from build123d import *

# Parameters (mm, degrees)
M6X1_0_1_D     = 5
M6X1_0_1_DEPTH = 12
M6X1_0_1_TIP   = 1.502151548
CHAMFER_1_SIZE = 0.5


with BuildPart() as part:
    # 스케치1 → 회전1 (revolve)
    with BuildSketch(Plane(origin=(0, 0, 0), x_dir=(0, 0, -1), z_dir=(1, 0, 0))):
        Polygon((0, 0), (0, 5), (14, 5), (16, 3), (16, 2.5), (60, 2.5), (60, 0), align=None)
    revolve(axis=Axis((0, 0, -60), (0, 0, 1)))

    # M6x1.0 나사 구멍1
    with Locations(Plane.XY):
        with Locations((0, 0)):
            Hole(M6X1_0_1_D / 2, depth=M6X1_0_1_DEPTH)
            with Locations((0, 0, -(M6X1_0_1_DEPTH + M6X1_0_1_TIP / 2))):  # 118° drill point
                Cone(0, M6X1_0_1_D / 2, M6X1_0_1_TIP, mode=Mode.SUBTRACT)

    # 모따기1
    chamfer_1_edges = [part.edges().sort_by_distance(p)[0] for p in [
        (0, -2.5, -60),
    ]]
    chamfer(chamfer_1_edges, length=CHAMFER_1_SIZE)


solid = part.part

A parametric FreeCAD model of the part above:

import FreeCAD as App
import Part
import Sketcher

V = App.Vector
Q = App.Units.Quantity


def edges_at(feature, points):
    """Names of the edges that pass closest to the given points."""
    edges = feature.Shape.Edges
    near = lambda p: min(range(len(edges)), key=lambda i: edges[i].distToShape(Part.Vertex(*p))[0])
    return sorted({f"Edge{near(p) + 1}" for p in points})


def add_polygon(sketch, points):
    """Adds a closed chain of lines whose ends are joined by coincident constraints."""
    first, n = sketch.GeometryCount, len(points)
    for a, b in zip(points, points[1:] + points[:1]):
        sketch.addGeometry(Part.LineSegment(App.Vector(*a, 0), App.Vector(*b, 0)), False)
    for i in range(n):
        sketch.addConstraint(Sketcher.Constraint("Coincident", first + i, 2, first + (i + 1) % n, 1))

doc = App.newDocument("Part")
params = doc.addObject("Spreadsheet::Sheet", "Params")
for row, (alias, value) in enumerate([
    ("sketch1_width", "5 mm"),
    ("sketch1_height", "60 mm"),
    ("sketch1_height2", "44 mm"),
    ("sketch1_height3", "14 mm"),
    ("sketch1_width2", "2.5 mm"),
    ("revolution_angle", "360 deg"),
    ("sketch2_diameter", "5 mm"),
    ("hole_diameter", "5 mm"),
    ("hole_depth", "12 mm"),
    ("chamfer_size", "0.5 mm"),
], start=1):
    params.set(f"A{row}", alias)
    params.set(f"B{row}", "=" + value)
    params.setAlias(f"B{row}", alias)

body = doc.addObject("PartDesign::Body", "Body")

# Sketch on YZ plane
sketch1 = doc.addObject("Sketcher::SketchObject", "Sketch")
body.addObject(sketch1)
sketch1.AttachmentSupport = (doc.YZ_Plane, [""])
sketch1.MapMode = "FlatFace"
add_polygon(sketch1, [(5, 0), (0, 0), (0, -60), (2.5, -60), (2.5, -16), (3, -16), (5, -14)])  # lines 0-6
sketch1.addConstraint(Sketcher.Constraint("Horizontal", 0))
sketch1.addConstraint(Sketcher.Constraint("Vertical", 1))
sketch1.addConstraint(Sketcher.Constraint("Horizontal", 2))
sketch1.addConstraint(Sketcher.Constraint("Vertical", 3))
sketch1.addConstraint(Sketcher.Constraint("Horizontal", 4))
sketch1.addConstraint(Sketcher.Constraint("Vertical", 6))
sketch1.addConstraint(Sketcher.Constraint("Coincident", 0, 2, -1, 1))
sketch1.addConstraint(Sketcher.Constraint("DistanceX", 0, 2, 0, 1, 5.0))
sketch1.addConstraint(Sketcher.Constraint("DistanceY", 1, 2, 1, 1, 60.0))
sketch1.addConstraint(Sketcher.Constraint("DistanceY", 3, 1, 3, 2, 44.0))
sketch1.addConstraint(Sketcher.Constraint("DistanceY", 6, 1, 6, 2, 14.0))
sketch1.addConstraint(Sketcher.Constraint("Angle", 5, Q("45 deg")))
sketch1.addConstraint(Sketcher.Constraint("DistanceX", 2, 1, 2, 2, 2.5))
sketch1.setExpression("Constraints[14]", "Params.sketch1_width")
sketch1.setExpression("Constraints[15]", "Params.sketch1_height")
sketch1.setExpression("Constraints[16]", "Params.sketch1_height2")
sketch1.setExpression("Constraints[17]", "Params.sketch1_height3")
sketch1.setExpression("Constraints[19]", "Params.sketch1_width2")
revolution = doc.addObject("PartDesign::Revolution", "Revolution")
body.addObject(revolution)
revolution.Profile = sketch1
revolution.ReferenceAxis = (sketch1, ["V_Axis"])
revolution.setExpression("Angle", "Params.revolution_angle")

# Sketch on XY plane
sketch2 = doc.addObject("Sketcher::SketchObject", "Sketch001")
body.addObject(sketch2)
sketch2.AttachmentSupport = (doc.XY_Plane, [""])
sketch2.MapMode = "FlatFace"
sketch2.addGeometry(Part.Circle(V(0, 0, 0), V(0, 0, 1), 2.5), False)
sketch2.addConstraint(Sketcher.Constraint("Coincident", 0, 3, -1, 1))
sketch2.addConstraint(Sketcher.Constraint("Diameter", 0, 5.0))
sketch2.setExpression("Constraints[1]", "Params.sketch2_diameter")
doc.recompute()
hole = doc.addObject("PartDesign::Hole", "Hole")
body.addObject(hole)
hole.Profile = sketch2
hole.ThreadType = "None"
hole.setExpression("Diameter", "Params.hole_diameter")
hole.DepthType = "Dimension"
hole.setExpression("Depth", "Params.hole_depth")
hole.DrillPoint = "Angled"
hole.DrillPointAngle = 118
doc.recompute()

chamfer = doc.addObject("PartDesign::Chamfer", "Chamfer")
body.addObject(chamfer)
chamfer.Base = (hole, edges_at(hole, [(0, -2.5, -60)]))
chamfer.setExpression("Size", "Params.chamfer_size")

doc.recompute()
